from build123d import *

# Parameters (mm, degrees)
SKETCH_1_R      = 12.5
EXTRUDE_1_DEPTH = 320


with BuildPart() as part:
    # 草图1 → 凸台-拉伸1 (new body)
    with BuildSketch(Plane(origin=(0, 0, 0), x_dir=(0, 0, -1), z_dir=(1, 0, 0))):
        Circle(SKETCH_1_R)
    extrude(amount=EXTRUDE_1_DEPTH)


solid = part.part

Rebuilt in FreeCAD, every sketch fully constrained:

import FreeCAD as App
import Part
import Sketcher
Q = App.Units.Quantity

doc = App.newDocument("Part")
body = doc.addObject("PartDesign::Body", "Body")

sketch1 = body.newObject("Sketcher::SketchObject", "Sketch")
sketch1.AttachmentSupport = (doc.getObject("YZ_Plane"), [""])
sketch1.MapMode = "FlatFace"
sketch1.addGeometry(Part.Circle(App.Vector(0, 0, 0), App.Vector(0, 0, 1), 12), False)
sketch1.addConstraint([
    Sketcher.Constraint("Coincident", 0, 3, -1, 1),
    Sketcher.Constraint("Diameter", 0, Q("25 mm")),
])
pad1 = body.newObject("PartDesign::Pad", "Pad")
pad1.Profile = sketch1
pad1.Length = 320

doc.recompute()
